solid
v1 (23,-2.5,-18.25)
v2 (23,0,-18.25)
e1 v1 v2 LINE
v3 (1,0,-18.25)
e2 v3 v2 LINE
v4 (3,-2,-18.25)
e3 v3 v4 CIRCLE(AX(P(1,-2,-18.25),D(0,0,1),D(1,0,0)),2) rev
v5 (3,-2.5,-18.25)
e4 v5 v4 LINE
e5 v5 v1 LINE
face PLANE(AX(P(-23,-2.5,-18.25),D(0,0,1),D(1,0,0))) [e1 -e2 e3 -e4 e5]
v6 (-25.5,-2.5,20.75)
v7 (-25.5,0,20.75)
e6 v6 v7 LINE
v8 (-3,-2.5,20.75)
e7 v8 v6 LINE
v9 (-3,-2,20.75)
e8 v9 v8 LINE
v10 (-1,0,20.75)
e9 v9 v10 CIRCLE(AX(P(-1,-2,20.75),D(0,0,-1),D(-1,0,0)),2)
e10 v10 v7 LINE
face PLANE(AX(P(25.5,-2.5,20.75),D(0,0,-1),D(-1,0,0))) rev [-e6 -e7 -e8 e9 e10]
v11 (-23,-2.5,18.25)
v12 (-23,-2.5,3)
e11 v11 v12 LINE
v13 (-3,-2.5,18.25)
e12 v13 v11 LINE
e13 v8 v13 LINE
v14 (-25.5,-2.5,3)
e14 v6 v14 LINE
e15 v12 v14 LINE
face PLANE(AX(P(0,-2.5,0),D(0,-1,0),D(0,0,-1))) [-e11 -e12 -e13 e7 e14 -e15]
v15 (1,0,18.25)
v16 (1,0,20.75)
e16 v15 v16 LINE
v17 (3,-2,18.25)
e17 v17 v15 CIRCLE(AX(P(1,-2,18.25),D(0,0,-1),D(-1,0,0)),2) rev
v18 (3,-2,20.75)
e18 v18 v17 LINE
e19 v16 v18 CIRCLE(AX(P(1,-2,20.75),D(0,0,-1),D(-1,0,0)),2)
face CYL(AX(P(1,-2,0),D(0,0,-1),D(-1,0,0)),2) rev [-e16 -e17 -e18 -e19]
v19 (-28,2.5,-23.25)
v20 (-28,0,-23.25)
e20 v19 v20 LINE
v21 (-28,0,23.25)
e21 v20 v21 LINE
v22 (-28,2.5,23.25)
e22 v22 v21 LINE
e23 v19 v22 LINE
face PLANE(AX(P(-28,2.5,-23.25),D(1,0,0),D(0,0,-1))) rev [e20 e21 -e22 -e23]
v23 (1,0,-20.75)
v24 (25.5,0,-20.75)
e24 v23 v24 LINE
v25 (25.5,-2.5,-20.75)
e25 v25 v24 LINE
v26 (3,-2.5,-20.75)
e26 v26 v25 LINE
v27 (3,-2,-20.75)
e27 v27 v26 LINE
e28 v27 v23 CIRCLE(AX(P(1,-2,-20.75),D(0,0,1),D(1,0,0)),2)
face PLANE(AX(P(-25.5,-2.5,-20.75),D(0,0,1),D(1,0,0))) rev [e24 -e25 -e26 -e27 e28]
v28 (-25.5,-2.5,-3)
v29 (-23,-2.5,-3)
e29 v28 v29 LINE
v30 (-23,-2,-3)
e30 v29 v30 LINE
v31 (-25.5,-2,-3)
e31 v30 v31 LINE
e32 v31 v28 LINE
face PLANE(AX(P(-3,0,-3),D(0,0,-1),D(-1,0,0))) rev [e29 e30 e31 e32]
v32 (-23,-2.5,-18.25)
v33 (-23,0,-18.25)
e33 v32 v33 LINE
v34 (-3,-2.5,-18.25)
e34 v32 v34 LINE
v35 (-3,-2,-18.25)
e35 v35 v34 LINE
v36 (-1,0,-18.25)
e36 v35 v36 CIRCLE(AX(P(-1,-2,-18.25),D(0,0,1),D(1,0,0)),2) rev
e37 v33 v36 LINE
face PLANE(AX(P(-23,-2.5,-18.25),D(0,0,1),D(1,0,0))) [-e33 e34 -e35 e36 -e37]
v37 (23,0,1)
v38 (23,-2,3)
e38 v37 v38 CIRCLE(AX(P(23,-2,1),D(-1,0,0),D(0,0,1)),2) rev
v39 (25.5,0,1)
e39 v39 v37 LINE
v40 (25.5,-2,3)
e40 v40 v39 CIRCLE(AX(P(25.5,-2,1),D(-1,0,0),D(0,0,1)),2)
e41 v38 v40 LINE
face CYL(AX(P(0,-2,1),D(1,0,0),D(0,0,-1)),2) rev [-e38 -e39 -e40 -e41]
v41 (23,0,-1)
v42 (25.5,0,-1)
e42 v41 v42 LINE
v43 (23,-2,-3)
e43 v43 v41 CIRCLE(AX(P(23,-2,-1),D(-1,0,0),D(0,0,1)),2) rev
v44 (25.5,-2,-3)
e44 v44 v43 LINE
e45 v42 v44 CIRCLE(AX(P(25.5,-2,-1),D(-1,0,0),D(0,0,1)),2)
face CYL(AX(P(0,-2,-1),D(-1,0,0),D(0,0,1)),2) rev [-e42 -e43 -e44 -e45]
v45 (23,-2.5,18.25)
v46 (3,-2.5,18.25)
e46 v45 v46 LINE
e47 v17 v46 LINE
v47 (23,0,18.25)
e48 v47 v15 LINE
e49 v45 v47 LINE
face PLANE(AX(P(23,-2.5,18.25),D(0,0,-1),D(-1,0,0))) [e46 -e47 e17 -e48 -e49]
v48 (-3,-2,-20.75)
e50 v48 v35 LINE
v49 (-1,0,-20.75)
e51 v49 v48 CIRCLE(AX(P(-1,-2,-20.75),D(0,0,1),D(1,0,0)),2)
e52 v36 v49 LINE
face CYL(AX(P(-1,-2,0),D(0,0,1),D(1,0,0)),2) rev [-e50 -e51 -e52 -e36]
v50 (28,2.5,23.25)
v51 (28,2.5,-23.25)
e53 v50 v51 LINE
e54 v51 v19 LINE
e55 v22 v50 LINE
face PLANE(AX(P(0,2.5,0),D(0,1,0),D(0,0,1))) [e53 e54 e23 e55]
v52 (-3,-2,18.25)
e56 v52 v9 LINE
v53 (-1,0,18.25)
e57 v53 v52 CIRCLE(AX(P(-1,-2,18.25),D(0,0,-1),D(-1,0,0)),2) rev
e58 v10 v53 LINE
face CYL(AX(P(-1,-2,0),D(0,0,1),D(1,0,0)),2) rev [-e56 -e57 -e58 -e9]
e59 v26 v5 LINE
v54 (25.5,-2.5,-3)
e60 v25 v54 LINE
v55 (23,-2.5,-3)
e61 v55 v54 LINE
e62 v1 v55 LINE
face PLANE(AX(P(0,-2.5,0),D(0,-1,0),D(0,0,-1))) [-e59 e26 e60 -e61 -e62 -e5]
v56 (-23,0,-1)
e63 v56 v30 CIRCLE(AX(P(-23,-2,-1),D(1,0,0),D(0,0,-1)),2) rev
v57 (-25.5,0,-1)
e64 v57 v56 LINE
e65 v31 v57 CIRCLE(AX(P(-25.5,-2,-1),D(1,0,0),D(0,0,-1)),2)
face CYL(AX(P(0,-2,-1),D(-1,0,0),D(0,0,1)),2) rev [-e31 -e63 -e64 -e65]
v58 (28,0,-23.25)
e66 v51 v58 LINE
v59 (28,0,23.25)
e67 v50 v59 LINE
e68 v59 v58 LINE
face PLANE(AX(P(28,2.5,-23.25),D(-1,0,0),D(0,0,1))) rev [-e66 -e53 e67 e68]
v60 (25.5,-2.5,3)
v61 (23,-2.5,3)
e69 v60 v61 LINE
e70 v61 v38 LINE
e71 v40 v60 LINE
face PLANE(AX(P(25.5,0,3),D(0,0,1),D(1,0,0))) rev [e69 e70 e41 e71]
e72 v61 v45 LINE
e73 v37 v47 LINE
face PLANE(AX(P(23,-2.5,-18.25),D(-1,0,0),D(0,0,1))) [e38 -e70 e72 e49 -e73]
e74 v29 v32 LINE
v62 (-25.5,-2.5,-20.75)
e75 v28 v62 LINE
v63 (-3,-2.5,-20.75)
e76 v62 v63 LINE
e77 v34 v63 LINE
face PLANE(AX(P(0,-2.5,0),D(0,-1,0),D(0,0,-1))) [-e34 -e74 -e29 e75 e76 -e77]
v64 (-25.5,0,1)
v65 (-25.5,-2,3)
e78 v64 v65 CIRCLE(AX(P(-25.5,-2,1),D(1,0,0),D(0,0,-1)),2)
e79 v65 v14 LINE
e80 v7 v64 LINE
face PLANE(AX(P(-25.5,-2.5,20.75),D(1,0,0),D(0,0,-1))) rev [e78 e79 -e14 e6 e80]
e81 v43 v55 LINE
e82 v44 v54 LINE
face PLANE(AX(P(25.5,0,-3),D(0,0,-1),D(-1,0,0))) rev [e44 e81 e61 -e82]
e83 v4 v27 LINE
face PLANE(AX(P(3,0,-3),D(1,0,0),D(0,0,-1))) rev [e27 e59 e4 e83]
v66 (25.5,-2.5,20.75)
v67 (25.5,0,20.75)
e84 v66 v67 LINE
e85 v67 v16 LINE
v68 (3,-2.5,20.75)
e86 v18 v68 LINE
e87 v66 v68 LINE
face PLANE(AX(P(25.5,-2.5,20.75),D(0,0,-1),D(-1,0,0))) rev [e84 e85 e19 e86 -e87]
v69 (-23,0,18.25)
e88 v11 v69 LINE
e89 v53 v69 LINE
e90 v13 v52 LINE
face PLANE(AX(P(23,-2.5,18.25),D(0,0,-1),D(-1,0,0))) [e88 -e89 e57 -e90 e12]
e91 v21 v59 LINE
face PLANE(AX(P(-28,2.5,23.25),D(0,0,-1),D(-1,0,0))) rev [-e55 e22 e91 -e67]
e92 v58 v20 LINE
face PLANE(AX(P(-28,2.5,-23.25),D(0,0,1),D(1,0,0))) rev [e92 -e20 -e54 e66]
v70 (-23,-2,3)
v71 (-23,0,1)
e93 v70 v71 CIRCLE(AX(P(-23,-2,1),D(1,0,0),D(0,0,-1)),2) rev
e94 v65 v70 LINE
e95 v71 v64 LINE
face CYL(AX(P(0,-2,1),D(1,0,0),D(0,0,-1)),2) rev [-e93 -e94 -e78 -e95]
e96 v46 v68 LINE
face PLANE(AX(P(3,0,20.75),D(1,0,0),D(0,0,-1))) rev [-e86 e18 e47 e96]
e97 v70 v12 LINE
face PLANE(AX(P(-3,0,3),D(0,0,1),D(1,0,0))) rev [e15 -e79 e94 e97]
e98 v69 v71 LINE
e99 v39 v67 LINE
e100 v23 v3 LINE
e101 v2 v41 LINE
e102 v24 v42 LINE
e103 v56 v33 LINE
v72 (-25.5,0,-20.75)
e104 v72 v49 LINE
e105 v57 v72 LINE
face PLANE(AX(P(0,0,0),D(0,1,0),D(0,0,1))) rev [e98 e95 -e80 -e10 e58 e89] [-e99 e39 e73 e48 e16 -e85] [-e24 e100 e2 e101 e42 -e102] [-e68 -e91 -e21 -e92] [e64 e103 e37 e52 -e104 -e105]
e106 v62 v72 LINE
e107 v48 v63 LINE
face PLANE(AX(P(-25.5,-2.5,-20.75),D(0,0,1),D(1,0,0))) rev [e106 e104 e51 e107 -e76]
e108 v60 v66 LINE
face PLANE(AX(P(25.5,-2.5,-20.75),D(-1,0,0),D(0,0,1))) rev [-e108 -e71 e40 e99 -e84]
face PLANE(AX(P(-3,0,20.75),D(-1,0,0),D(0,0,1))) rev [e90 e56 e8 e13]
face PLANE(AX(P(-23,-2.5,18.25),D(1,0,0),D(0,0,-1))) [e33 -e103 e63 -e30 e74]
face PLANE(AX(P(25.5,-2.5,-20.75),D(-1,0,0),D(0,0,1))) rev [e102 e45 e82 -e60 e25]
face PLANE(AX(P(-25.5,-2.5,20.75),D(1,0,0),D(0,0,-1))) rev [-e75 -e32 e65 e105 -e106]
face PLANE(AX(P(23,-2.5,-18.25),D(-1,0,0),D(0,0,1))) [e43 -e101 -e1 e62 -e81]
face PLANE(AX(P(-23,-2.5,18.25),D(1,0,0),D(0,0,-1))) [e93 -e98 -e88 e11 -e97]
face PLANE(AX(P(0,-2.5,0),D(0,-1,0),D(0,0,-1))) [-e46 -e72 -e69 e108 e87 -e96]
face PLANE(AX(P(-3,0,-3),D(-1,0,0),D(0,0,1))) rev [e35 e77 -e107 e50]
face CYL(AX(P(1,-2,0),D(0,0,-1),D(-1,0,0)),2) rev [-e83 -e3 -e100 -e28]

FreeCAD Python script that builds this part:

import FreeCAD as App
import Part
import Sketcher


def edges_at(feature, points):
    """Names of the edges that pass closest to the given points."""
    edges = feature.Shape.Edges
    near = lambda p: min(range(len(edges)), key=lambda i: edges[i].distToShape(Part.Vertex(*p))[0])
    return sorted({f"Edge{near(p) + 1}" for p in points})


def add_polygon(sketch, points):
    """Adds a closed chain of lines whose ends are joined by coincident constraints."""
    first, n = sketch.GeometryCount, len(points)
    for a, b in zip(points, points[1:] + points[:1]):
        sketch.addGeometry(Part.LineSegment(App.Vector(*a, 0), App.Vector(*b, 0)), False)
    for i in range(n):
        sketch.addConstraint(Sketcher.Constraint("Coincident", first + i, 2, first + (i + 1) % n, 1))

doc = App.newDocument("Part")
body = doc.addObject("PartDesign::Body", "Body")

# Sketch on XZ plane
sketch1 = body.newObject("Sketcher::SketchObject", "Sketch")
sketch1.AttachmentSupport = (doc.getObject("XZ_Plane"), [""])
sketch1.MapMode = "FlatFace"
add_polygon(sketch1, [(-28, -23), (-28, 23), (28, 23), (28, -23)])  # lines 0-3
sketch1.addConstraint([
    Sketcher.Constraint("Vertical", 0),
    Sketcher.Constraint("Horizontal", 1),
    Sketcher.Constraint("Vertical", 2),
    Sketcher.Constraint("Horizontal", 3),
    Sketcher.Constraint("Symmetric", 0, 2, 2, 2, -1, 1),
    Sketcher.Constraint("DistanceX", 1, 1, 1, 2, 56.0),
    Sketcher.Constraint("DistanceY", 0, 1, 0, 2, 46.5),
])
pad1 = body.newObject("PartDesign::Pad", "Pad")
pad1.Profile = sketch1
pad1.Length = 2.5
pad1.Reversed = True

# Sketch on XZ plane
sketch2 = body.newObject("Sketcher::SketchObject", "Sketch001")
sketch2.AttachmentSupport = (doc.getObject("XZ_Plane"), [""])
sketch2.MapMode = "FlatFace"
add_polygon(sketch2, [(-26, 21), (-26, -21), (26, -21), (26, 21)])  # lines 0-3
add_polygon(sketch2, [(23, -18), (-23, -18), (-23, 18), (23, 18)])  # lines 4-7
sketch2.addConstraint([
    Sketcher.Constraint("Vertical", 0),
    Sketcher.Constraint("Horizontal", 1),
    Sketcher.Constraint("Vertical", 2),
    Sketcher.Constraint("Horizontal", 3),
    Sketcher.Constraint("Horizontal", 4),
    Sketcher.Constraint("Vertical", 5),
    Sketcher.Constraint("Horizontal", 6),
    Sketcher.Constraint("Vertical", 7),
    Sketcher.Constraint("Symmetric", 0, 2, 2, 2, -1, 1),
    Sketcher.Constraint("Symmetric", 4, 2, 6, 2, -1, 1),
    Sketcher.Constraint("DistanceX", 1, 1, 1, 2, 51.0),
    Sketcher.Constraint("DistanceX", 4, 2, 4, 1, 46.0),
    Sketcher.Constraint("DistanceY", 0, 2, 0, 1, 41.5),
    Sketcher.Constraint("DistanceY", 5, 1, 5, 2, 36.5),
])
pad2 = body.newObject("PartDesign::Pad", "Pad001")
pad2.Profile = sketch2
pad2.Length = 2.5

# Sketch on XZ plane
sketch3 = body.newObject("Sketcher::SketchObject", "Sketch002")
sketch3.AttachmentSupport = (doc.getObject("XZ_Plane"), [""])
sketch3.MapMode = "FlatFace"
sketch3.AttachmentOffset = App.Placement(App.Vector(0, 0, 2.5), App.Rotation())
add_polygon(sketch3, [(3, 21), (-3, 21), (-3, 3), (-26, 3), (-26, -3), (-3, -3), (-3, -21), (3, -21), (3, -3), (26, -3), (26, 3), (3, 3)])  # lines 0-11
sketch3.addConstraint([
    Sketcher.Constraint("Horizontal", 0),
    Sketcher.Constraint("Vertical", 1),
    Sketcher.Constraint("Horizontal", 2),
    Sketcher.Constraint("Vertical", 3),
    Sketcher.Constraint("Horizontal", 4),
    Sketcher.Constraint("Vertical", 5),
    Sketcher.Constraint("Horizontal", 6),
    Sketcher.Constraint("Vertical", 7),
    Sketcher.Constraint("Horizontal", 8),
    Sketcher.Constraint("Vertical", 9),
    Sketcher.Constraint("Horizontal", 10),
    Sketcher.Constraint("Vertical", 11),
    Sketcher.Constraint("Symmetric", 0, 2, 6, 2, -1, 1),
    Sketcher.Constraint("Symmetric", 2, 2, 8, 2, -1, 1),
    Sketcher.Constraint("Symmetric", 4, 2, 10, 2, -1, 1),
    Sketcher.Constraint("Symmetric", 4, 2, 7, 2, -2),
    Sketcher.Constraint("Equal", 6, 3),
    Sketcher.Constraint("DistanceX", 0, 2, 0, 1, 6.0),
    Sketcher.Constraint("DistanceX", 2, 2, 2, 1, 22.5),
    Sketcher.Constraint("DistanceY", 1, 2, 1, 1, 17.75),
])
pocket1 = body.newObject("PartDesign::Pocket", "Pocket")
pocket1.Profile = sketch3
pocket1.Length = 2.5
doc.recompute()

fillet = body.newObject("PartDesign::Fillet", "Fillet")
fillet.Base = (pocket1, edges_at(pocket1, [
    (-3, 0, 19.5),
    (3, 0, 19.5),
    (24.25, 0, 3),
    (24.25, 0, -3),
    (3, 0, -19.5),
    (-3, 0, -19.5),
    (-24.25, 0, -3),
    (-24.25, 0, 3),
]))
fillet.Radius = 2

doc.recompute()
